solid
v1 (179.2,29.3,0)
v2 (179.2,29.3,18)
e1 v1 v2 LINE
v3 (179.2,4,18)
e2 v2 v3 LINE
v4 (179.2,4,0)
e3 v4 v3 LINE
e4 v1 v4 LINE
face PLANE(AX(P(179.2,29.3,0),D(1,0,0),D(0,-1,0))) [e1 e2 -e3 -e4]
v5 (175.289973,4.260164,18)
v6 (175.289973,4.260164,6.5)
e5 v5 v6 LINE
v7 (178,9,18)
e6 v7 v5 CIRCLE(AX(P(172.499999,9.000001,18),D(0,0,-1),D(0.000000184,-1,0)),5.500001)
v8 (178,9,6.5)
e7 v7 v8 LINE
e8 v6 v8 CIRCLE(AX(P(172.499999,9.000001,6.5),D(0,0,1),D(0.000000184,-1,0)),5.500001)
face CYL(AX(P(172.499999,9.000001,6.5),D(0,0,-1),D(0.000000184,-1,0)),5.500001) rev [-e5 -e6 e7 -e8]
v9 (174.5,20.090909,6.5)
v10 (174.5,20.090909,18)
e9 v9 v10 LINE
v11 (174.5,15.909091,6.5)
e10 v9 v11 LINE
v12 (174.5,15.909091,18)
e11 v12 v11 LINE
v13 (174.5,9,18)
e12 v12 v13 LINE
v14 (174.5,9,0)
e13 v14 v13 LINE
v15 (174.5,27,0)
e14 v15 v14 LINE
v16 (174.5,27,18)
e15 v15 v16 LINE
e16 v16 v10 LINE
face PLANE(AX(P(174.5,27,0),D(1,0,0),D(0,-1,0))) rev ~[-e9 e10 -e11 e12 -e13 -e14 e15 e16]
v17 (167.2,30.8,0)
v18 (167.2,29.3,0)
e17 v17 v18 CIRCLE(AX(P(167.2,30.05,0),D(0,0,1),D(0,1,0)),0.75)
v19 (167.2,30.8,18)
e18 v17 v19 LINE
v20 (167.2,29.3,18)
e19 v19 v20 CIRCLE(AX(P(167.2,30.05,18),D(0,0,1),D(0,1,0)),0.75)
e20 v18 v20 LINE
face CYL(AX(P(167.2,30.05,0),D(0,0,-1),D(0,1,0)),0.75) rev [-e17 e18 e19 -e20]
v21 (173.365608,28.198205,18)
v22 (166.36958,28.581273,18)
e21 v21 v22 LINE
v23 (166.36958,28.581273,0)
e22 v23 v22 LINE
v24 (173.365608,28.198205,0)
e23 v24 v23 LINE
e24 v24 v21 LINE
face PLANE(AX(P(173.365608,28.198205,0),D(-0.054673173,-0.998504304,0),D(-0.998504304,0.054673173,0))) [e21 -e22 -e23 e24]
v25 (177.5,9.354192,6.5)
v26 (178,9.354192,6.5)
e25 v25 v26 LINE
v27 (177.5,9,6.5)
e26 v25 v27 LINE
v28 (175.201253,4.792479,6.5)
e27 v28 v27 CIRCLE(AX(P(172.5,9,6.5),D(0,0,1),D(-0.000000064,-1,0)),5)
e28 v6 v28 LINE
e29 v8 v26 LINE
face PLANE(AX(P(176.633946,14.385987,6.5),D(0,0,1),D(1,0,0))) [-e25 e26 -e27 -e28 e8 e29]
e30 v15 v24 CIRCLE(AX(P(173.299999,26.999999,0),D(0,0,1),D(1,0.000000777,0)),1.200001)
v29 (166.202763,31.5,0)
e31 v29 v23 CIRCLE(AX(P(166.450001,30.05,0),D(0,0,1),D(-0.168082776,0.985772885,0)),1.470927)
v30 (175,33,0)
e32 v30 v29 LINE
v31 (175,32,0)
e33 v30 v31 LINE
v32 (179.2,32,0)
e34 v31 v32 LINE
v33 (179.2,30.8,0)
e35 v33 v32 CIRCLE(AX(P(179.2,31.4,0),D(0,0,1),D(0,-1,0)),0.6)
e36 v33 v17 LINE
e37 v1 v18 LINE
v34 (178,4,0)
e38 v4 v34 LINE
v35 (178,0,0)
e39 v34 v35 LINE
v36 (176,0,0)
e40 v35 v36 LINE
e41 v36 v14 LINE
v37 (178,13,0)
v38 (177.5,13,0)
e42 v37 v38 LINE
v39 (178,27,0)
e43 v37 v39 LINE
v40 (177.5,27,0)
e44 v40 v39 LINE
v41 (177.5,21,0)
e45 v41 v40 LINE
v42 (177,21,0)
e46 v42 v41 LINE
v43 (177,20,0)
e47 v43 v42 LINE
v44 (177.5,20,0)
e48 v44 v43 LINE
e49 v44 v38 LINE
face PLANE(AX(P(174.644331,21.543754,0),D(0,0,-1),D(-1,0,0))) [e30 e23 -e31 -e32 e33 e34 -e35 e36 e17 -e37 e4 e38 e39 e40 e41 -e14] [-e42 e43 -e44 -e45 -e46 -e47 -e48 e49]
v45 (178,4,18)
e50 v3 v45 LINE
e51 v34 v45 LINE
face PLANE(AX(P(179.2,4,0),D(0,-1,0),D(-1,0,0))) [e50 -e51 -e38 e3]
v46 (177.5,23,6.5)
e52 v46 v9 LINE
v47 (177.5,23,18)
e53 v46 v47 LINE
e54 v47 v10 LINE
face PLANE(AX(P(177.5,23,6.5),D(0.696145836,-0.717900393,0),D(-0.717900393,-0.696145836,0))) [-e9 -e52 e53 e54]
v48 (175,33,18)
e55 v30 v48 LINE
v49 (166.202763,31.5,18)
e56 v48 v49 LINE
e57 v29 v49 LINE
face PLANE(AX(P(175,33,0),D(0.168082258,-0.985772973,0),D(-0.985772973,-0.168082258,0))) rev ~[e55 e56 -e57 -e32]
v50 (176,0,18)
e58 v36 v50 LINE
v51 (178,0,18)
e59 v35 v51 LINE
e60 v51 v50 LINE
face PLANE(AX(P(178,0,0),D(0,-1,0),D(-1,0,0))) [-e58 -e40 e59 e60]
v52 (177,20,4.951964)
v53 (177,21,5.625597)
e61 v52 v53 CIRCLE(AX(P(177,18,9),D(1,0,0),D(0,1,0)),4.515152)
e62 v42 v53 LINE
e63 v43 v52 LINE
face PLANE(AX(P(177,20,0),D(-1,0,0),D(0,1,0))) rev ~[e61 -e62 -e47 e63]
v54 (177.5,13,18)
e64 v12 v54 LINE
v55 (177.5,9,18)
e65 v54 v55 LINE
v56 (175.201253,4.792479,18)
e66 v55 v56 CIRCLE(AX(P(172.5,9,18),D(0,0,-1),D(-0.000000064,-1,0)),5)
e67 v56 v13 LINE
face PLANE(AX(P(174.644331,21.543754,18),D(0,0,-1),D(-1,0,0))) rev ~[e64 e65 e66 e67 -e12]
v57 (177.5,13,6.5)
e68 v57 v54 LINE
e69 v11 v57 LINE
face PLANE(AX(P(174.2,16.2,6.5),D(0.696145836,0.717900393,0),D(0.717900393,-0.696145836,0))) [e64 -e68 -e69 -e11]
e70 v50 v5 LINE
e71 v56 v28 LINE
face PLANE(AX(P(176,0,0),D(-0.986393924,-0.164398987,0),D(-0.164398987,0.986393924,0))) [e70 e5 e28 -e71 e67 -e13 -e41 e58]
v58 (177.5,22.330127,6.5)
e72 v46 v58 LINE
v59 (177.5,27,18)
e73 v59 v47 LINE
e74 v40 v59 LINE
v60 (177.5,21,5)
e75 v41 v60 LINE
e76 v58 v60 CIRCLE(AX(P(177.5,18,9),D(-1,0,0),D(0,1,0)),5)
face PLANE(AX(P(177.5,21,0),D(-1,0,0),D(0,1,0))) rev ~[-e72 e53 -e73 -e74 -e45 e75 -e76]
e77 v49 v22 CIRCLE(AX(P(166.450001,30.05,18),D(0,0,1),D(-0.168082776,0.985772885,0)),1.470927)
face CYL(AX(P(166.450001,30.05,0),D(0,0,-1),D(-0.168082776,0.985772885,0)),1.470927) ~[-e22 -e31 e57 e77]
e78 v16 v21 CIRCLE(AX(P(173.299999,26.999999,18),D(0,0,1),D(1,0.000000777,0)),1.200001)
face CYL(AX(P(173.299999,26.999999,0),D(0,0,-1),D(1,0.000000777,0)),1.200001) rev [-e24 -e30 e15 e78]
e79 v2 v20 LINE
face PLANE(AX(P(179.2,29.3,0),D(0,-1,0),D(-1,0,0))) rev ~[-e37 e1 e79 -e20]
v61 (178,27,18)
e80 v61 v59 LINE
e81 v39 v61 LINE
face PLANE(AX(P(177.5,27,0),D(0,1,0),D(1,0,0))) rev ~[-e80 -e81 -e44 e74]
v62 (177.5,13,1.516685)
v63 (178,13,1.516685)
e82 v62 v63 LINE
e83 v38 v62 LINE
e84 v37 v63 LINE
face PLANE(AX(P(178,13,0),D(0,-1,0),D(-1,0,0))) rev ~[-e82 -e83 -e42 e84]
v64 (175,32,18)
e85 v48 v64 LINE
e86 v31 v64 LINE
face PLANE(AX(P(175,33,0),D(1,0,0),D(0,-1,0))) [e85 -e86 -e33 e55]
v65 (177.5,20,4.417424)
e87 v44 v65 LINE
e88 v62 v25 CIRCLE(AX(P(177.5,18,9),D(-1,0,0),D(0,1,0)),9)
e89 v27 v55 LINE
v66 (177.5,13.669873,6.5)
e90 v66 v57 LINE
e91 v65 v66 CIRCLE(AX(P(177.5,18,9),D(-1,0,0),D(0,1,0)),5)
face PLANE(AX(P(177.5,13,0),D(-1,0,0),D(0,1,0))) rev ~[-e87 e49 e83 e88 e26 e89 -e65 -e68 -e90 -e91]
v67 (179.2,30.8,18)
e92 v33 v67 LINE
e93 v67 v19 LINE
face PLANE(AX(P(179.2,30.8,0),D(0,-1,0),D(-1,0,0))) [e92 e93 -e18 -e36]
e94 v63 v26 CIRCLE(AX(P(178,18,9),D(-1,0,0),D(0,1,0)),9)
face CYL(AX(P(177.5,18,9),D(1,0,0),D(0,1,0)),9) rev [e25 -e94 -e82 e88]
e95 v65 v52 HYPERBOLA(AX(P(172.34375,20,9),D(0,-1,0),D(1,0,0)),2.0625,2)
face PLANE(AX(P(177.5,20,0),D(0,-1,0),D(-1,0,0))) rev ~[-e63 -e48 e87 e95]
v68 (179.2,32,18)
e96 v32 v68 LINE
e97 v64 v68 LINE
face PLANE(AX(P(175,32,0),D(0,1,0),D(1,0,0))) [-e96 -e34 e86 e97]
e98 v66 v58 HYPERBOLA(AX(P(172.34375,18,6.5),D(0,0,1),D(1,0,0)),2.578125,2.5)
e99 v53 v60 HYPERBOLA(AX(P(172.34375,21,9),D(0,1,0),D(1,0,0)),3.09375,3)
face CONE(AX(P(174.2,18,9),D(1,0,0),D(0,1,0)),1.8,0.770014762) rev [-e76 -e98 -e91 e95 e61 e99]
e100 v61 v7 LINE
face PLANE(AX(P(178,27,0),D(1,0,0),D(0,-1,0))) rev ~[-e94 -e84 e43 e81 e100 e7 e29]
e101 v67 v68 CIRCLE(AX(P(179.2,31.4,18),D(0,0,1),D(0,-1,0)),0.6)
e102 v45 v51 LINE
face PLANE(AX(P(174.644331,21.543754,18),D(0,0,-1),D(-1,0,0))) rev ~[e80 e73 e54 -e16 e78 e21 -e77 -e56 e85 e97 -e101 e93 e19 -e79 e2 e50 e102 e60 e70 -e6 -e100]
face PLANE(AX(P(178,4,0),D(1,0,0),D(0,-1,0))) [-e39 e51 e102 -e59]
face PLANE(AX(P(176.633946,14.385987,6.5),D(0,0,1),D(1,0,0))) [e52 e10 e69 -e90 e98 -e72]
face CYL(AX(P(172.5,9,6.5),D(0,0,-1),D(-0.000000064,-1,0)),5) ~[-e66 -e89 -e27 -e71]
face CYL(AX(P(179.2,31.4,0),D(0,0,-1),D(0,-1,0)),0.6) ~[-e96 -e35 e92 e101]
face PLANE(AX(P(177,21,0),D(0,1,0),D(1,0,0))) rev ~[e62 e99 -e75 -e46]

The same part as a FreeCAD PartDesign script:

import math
import FreeCAD as App
import Part
import Sketcher
from FreeCAD import Vector
Q = App.Units.Quantity

doc = App.newDocument("Part")
body = doc.addObject("PartDesign::Body", "Body")

# Sketch on XY plane
sketch1 = body.newObject("Sketcher::SketchObject", "Sketch")
sketch1.AttachmentSupport = (doc.getObject("XY_Plane"), [""])
sketch1.MapMode = "FlatFace"
sketch1.addGeometry([
    Part.LineSegment(Vector(176, 0, 0), Vector(178, 0, 0)),  # 0
    Part.LineSegment(Vector(178, 0, 0), Vector(178, 4, 0)),  # 1
    Part.LineSegment(Vector(178, 4, 0), Vector(179.2, 4, 0)),  # 2
    Part.LineSegment(Vector(179.2, 4, 0), Vector(179.2, 29.3, 0)),  # 3
    Part.LineSegment(Vector(179.2, 29.3, 0), Vector(167.2, 29.3, 0)),  # 4
    Part.ArcOfCircle(Part.Circle(Vector(167.2, 30.1, 0), Vector(0, 0, 1), 0.8), math.radians(90), math.radians(270)),  # 5
    Part.LineSegment(Vector(167.2, 30.8, 0), Vector(179.2, 30.8, 0)),  # 6
    Part.ArcOfCircle(Part.Circle(Vector(179.2, 31.4, 0), Vector(0, 0, 1), 0.6), math.radians(-90), math.radians(90)),  # 7
    Part.LineSegment(Vector(179.2, 32, 0), Vector(175, 32, 0)),  # 8
    Part.LineSegment(Vector(175, 32, 0), Vector(175, 33, 0)),  # 9
    Part.LineSegment(Vector(175, 33, 0), Vector(166.2, 31.5, 0)),  # 10
    Part.ArcOfCircle(Part.Circle(Vector(166.5, 30, 0), Vector(0, 0, 1), 1.5), math.radians(100), math.radians(267)),  # 11
    Part.LineSegment(Vector(166.4, 28.6, 0), Vector(173.4, 28.2, 0)),  # 12
    Part.ArcOfCircle(Part.Circle(Vector(173.3, 27, 0), Vector(0, 0, 1), 1.2), math.radians(0), math.radians(87)),  # 13
    Part.LineSegment(Vector(174.5, 27, 0), Vector(174.5, 9, 0)),  # 14
    Part.LineSegment(Vector(174.5, 9, 0), Vector(176, 0, 0)),  # 15
], False)
sketch1.addConstraint([
    Sketcher.Constraint("Coincident", 0, 2, 1, 1),
    Sketcher.Constraint("Coincident", 1, 2, 2, 1),
    Sketcher.Constraint("Coincident", 2, 2, 3, 1),
    Sketcher.Constraint("Coincident", 3, 2, 4, 1),
    Sketcher.Constraint("Tangent", 4, 2, 5, 2),
    Sketcher.Constraint("Tangent", 5, 1, 6, 1),
    Sketcher.Constraint("Tangent", 6, 2, 7, 1),
    Sketcher.Constraint("Tangent", 7, 2, 8, 1),
    Sketcher.Constraint("Coincident", 8, 2, 9, 1),
    Sketcher.Constraint("Coincident", 9, 2, 10, 1),
    Sketcher.Constraint("Tangent", 10, 2, 11, 1),
    Sketcher.Constraint("Tangent", 11, 2, 12, 1),
    Sketcher.Constraint("Tangent", 12, 2, 13, 2),
    Sketcher.Constraint("Tangent", 13, 1, 14, 1),
    Sketcher.Constraint("Coincident", 14, 2, 15, 1),
    Sketcher.Constraint("Coincident", 15, 2, 0, 1),
    Sketcher.Constraint("Horizontal", 0),
    Sketcher.Constraint("Vertical", 1),
    Sketcher.Constraint("Horizontal", 2),
    Sketcher.Constraint("Vertical", 3),
    Sketcher.Constraint("Horizontal", 4),
    Sketcher.Constraint("Horizontal", 6),
    Sketcher.Constraint("Horizontal", 8),
    Sketcher.Constraint("Vertical", 9),
    Sketcher.Constraint("Vertical", 14),
    Sketcher.Constraint("PointOnObject", 0, 2, -1),
    Sketcher.Constraint("Horizontal", 5, 3, 11, 3),
    Sketcher.Constraint("Vertical", 7, 3, 2, 2),
    Sketcher.Constraint("Radius", 7, Q("0.6 mm")),
    Sketcher.Constraint("Radius", 13, Q("1.200001 mm")),
    Sketcher.Constraint("DistanceX", 0, 1, 0, 2, Q("2 mm")),
    Sketcher.Constraint("DistanceX", 4, 2, 4, 1, Q("12 mm")),
    Sketcher.Constraint("DistanceY", 1, 1, 1, 2, Q("4 mm")),
    Sketcher.Constraint("DistanceY", 9, 1, 9, 2, Q("1 mm")),
    Sketcher.Constraint("DistanceY", 14, 2, 14, 1, Q("18 mm")),
    Sketcher.Constraint("Radius", 5, Q("0.75 mm")),
    Sketcher.Constraint("DistanceX", 2, 1, 2, 2, Q("1.2 mm")),
    Sketcher.Constraint("DistanceX", 8, 2, 8, 1, Q("4.2 mm")),
    Sketcher.Constraint("DistanceY", 3, 1, 3, 2, Q("25.3 mm")),
    Sketcher.Constraint("DistanceY", -1, 1, 13, 3, Q("26.999999 mm")),
    Sketcher.Constraint("DistanceX", -1, 1, 0, 2, Q("178 mm")),
    Sketcher.Constraint("DistanceX", -1, 1, 13, 3, Q("173.299999 mm")),
    Sketcher.Constraint("DistanceY", -1, 1, 10, 2, Q("31.5 mm")),
    Sketcher.Constraint("DistanceX", -1, 1, 11, 3, Q("166.450001 mm")),
])
pad1 = body.newObject("PartDesign::Pad", "Pad")
pad1.Profile = sketch1
pad1.Length = 18

# Sketch on XY plane
sketch2 = body.newObject("Sketcher::SketchObject", "Sketch001")
sketch2.AttachmentSupport = (doc.getObject("XY_Plane"), [""])
sketch2.MapMode = "FlatFace"
sketch2.AttachmentOffset = App.Placement(Vector(0, 0, 9), App.Rotation())
sketch2.addGeometry([
    Part.LineSegment(Vector(174.2, 19.8, 0), Vector(174.2, 18, 0)),  # 0
    Part.LineSegment(Vector(174.2, 18, 0), Vector(178, 18, 0)),  # 1
    Part.LineSegment(Vector(178, 18, 0), Vector(178, 27, 0)),  # 2
    Part.LineSegment(Vector(178, 27, 0), Vector(177.5, 27, 0)),  # 3
    Part.LineSegment(Vector(177.5, 27, 0), Vector(177.5, 23, 0)),  # 4
    Part.LineSegment(Vector(177.5, 23, 0), Vector(174.2, 19.8, 0)),  # 5
], False)
sketch2.addGeometry(Part.LineSegment(Vector(178, 18, 0), Vector(174.2, 18, 0)), True)  # axis
sketch2.addConstraint([
    Sketcher.Constraint("Coincident", 0, 2, 1, 1),
    Sketcher.Constraint("Coincident", 1, 2, 2, 1),
    Sketcher.Constraint("Coincident", 2, 2, 3, 1),
    Sketcher.Constraint("Coincident", 3, 2, 4, 1),
    Sketcher.Constraint("Coincident", 4, 2, 5, 1),
    Sketcher.Constraint("Coincident", 5, 2, 0, 1),
    Sketcher.Constraint("Vertical", 0),
    Sketcher.Constraint("Horizontal", 1),
    Sketcher.Constraint("Vertical", 2),
    Sketcher.Constraint("Horizontal", 3),
    Sketcher.Constraint("Vertical", 4),
    Sketcher.Constraint("Horizontal", 6),
    Sketcher.Constraint("Coincident", 6, 1, 1, 2),
    Sketcher.Constraint("Vertical", 5, 2, 6, 2),
    Sketcher.Constraint("DistanceY", 2, 1, 2, 2, Q("9 mm")),
    Sketcher.Constraint("DistanceY", 4, 2, 4, 1, Q("4 mm")),
    Sketcher.Constraint("DistanceX", 1, 1, 1, 2, Q("3.8 mm")),
    Sketcher.Constraint("DistanceX", 3, 2, 3, 1, Q("0.5 mm")),
    Sketcher.Constraint("DistanceY", 0, 2, 0, 1, Q("1.8 mm")),
    Sketcher.Constraint("DistanceY", -1, 1, 0, 2, Q("18 mm")),
    Sketcher.Constraint("DistanceX", -1, 1, 1, 2, Q("178 mm")),
])
groove = body.newObject("PartDesign::Groove", "Groove")
groove.Profile = sketch2
groove.ReferenceAxis = (sketch2, ["Axis0"])
groove.Angle = 360

# Sketch on XY plane
sketch3 = body.newObject("Sketcher::SketchObject", "Sketch002")
sketch3.AttachmentSupport = (doc.getObject("XY_Plane"), [""])
sketch3.MapMode = "FlatFace"
sketch3.AttachmentOffset = App.Placement(Vector(0, 0, 6.5), App.Rotation())
sketch3.addGeometry([
    Part.LineSegment(Vector(178, 27, 0), Vector(177.5, 27, 0)),  # 0
    Part.LineSegment(Vector(177.5, 27, 0), Vector(177.5, 23, 0)),  # 1
    Part.LineSegment(Vector(177.5, 23, 0), Vector(174.2, 19.8, 0)),  # 2
    Part.LineSegment(Vector(174.2, 19.8, 0), Vector(174.2, 16.2, 0)),  # 3
    Part.LineSegment(Vector(174.2, 16.2, 0), Vector(177.5, 13, 0)),  # 4
    Part.LineSegment(Vector(177.5, 13, 0), Vector(177.5, 9, 0)),  # 5
    Part.ArcOfCircle(Part.Circle(Vector(172.5, 9, 0), Vector(0, 0, 1), 5), math.radians(-90), math.radians(0)),  # 6
    Part.LineSegment(Vector(172.5, 4, 0), Vector(172.5, 3.5, 0)),  # 7
    Part.ArcOfCircle(Part.Circle(Vector(172.5, 9, 0), Vector(0, 0, 1), 5.5), math.radians(-90), math.radians(0)),  # 8
    Part.LineSegment(Vector(178, 9, 0), Vector(178, 27, 0)),  # 9
], False)
sketch3.addConstraint([
    Sketcher.Constraint("Coincident", 0, 2, 1, 1),
    Sketcher.Constraint("Coincident", 1, 2, 2, 1),
    Sketcher.Constraint("Coincident", 2, 2, 3, 1),
    Sketcher.Constraint("Coincident", 3, 2, 4, 1),
    Sketcher.Constraint("Coincident", 4, 2, 5, 1),
    Sketcher.Constraint("Tangent", 5, 2, 6, 2),
    Sketcher.Constraint("Coincident", 6, 1, 7, 1),
    Sketcher.Constraint("Coincident", 7, 2, 8, 1),
    Sketcher.Constraint("Tangent", 8, 2, 9, 1),
    Sketcher.Constraint("Coincident", 9, 2, 0, 1),
    Sketcher.Constraint("Horizontal", 0),
    Sketcher.Constraint("Vertical", 1),
    Sketcher.Constraint("Vertical", 3),
    Sketcher.Constraint("Vertical", 5),
    Sketcher.Constraint("Vertical", 7),
    Sketcher.Constraint("Vertical", 9),
    Sketcher.Constraint("Coincident", 8, 3, 6, 3),
    Sketcher.Constraint("Vertical", 1, 2, 4, 2),
    Sketcher.Constraint("Vertical", 8, 3, 6, 1),
    Sketcher.Constraint("Equal", 1, 5),
    Sketcher.Constraint("Equal", 2, 4),
    Sketcher.Constraint("Radius", 6, Q("5 mm")),
    Sketcher.Constraint("Radius", 8, Q("5.500001 mm")),
    Sketcher.Constraint("DistanceY", 1, 2, 1, 1, Q("4 mm")),
    Sketcher.Constraint("DistanceY", 9, 1, 9, 2, Q("18 mm")),
    Sketcher.Constraint("DistanceY", 3, 2, 3, 1, Q("3.6 mm")),
    Sketcher.Constraint("DistanceY", -1, 1, 6, 3, Q("9 mm")),
    Sketcher.Constraint("DistanceX", -1, 1, 8, 2, Q("178 mm")),
    Sketcher.Constraint("DistanceX", -1, 1, 2, 2, Q("174.2 mm")),
])
pocket1 = body.newObject("PartDesign::Pocket", "Pocket")
pocket1.Profile = sketch3
pocket1.Length = 18
pocket1.Reversed = True

# Sketch on XY plane
sketch4 = body.newObject("Sketcher::SketchObject", "Sketch003")
sketch4.AttachmentSupport = (doc.getObject("XY_Plane"), [""])
sketch4.MapMode = "FlatFace"
sketch4.addGeometry([
    Part.LineSegment(Vector(178, 27, 0), Vector(177.5, 27, 0)),  # 0
    Part.LineSegment(Vector(177.5, 27, 0), Vector(177.5, 21, 0)),  # 1
    Part.LineSegment(Vector(177.5, 21, 0), Vector(177, 21, 0)),  # 2
    Part.LineSegment(Vector(177, 21, 0), Vector(177, 20, 0)),  # 3
    Part.LineSegment(Vector(177, 20, 0), Vector(177.5, 20, 0)),  # 4
    Part.LineSegment(Vector(177.5, 20, 0), Vector(177.5, 13, 0)),  # 5
    Part.LineSegment(Vector(177.5, 13, 0), Vector(178, 13, 0)),  # 6
    Part.LineSegment(Vector(178, 13, 0), Vector(178, 27, 0)),  # 7
], False)
sketch4.addConstraint([
    Sketcher.Constraint("Coincident", 0, 2, 1, 1),
    Sketcher.Constraint("Coincident", 1, 2, 2, 1),
    Sketcher.Constraint("Coincident", 2, 2, 3, 1),
    Sketcher.Constraint("Coincident", 3, 2, 4, 1),
    Sketcher.Constraint("Coincident", 4, 2, 5, 1),
    Sketcher.Constraint("Coincident", 5, 2, 6, 1),
    Sketcher.Constraint("Coincident", 6, 2, 7, 1),
    Sketcher.Constraint("Coincident", 7, 2, 0, 1),
    Sketcher.Constraint("Horizontal", 0),
    Sketcher.Constraint("Vertical", 1),
    Sketcher.Constraint("Horizontal", 2),
    Sketcher.Constraint("Vertical", 3),
    Sketcher.Constraint("Horizontal", 4),
    Sketcher.Constraint("Vertical", 5),
    Sketcher.Constraint("Horizontal", 6),
    Sketcher.Constraint("Vertical", 7),
    Sketcher.Constraint("Vertical", 1, 2, 4, 2),
    Sketcher.Constraint("Equal", 0, 2),
    Sketcher.Constraint("DistanceY", 1, 2, 1, 1, Q("6 mm")),
    Sketcher.Constraint("DistanceY", 3, 2, 3, 1, Q("1 mm")),
    Sketcher.Constraint("DistanceY", 5, 2, 5, 1, Q("7 mm")),
    Sketcher.Constraint("DistanceX", 0, 2, 0, 1, Q("0.5 mm")),
    Sketcher.Constraint("DistanceY", -1, 1, 0, 2, Q("27 mm")),
    Sketcher.Constraint("DistanceX", -1, 1, 2, 2, Q("177 mm")),
])
pocket2 = body.newObject("PartDesign::Pocket", "Pocket001")
pocket2.Profile = sketch4
pocket2.Length = 18
pocket2.Reversed = True

doc.recompute()
